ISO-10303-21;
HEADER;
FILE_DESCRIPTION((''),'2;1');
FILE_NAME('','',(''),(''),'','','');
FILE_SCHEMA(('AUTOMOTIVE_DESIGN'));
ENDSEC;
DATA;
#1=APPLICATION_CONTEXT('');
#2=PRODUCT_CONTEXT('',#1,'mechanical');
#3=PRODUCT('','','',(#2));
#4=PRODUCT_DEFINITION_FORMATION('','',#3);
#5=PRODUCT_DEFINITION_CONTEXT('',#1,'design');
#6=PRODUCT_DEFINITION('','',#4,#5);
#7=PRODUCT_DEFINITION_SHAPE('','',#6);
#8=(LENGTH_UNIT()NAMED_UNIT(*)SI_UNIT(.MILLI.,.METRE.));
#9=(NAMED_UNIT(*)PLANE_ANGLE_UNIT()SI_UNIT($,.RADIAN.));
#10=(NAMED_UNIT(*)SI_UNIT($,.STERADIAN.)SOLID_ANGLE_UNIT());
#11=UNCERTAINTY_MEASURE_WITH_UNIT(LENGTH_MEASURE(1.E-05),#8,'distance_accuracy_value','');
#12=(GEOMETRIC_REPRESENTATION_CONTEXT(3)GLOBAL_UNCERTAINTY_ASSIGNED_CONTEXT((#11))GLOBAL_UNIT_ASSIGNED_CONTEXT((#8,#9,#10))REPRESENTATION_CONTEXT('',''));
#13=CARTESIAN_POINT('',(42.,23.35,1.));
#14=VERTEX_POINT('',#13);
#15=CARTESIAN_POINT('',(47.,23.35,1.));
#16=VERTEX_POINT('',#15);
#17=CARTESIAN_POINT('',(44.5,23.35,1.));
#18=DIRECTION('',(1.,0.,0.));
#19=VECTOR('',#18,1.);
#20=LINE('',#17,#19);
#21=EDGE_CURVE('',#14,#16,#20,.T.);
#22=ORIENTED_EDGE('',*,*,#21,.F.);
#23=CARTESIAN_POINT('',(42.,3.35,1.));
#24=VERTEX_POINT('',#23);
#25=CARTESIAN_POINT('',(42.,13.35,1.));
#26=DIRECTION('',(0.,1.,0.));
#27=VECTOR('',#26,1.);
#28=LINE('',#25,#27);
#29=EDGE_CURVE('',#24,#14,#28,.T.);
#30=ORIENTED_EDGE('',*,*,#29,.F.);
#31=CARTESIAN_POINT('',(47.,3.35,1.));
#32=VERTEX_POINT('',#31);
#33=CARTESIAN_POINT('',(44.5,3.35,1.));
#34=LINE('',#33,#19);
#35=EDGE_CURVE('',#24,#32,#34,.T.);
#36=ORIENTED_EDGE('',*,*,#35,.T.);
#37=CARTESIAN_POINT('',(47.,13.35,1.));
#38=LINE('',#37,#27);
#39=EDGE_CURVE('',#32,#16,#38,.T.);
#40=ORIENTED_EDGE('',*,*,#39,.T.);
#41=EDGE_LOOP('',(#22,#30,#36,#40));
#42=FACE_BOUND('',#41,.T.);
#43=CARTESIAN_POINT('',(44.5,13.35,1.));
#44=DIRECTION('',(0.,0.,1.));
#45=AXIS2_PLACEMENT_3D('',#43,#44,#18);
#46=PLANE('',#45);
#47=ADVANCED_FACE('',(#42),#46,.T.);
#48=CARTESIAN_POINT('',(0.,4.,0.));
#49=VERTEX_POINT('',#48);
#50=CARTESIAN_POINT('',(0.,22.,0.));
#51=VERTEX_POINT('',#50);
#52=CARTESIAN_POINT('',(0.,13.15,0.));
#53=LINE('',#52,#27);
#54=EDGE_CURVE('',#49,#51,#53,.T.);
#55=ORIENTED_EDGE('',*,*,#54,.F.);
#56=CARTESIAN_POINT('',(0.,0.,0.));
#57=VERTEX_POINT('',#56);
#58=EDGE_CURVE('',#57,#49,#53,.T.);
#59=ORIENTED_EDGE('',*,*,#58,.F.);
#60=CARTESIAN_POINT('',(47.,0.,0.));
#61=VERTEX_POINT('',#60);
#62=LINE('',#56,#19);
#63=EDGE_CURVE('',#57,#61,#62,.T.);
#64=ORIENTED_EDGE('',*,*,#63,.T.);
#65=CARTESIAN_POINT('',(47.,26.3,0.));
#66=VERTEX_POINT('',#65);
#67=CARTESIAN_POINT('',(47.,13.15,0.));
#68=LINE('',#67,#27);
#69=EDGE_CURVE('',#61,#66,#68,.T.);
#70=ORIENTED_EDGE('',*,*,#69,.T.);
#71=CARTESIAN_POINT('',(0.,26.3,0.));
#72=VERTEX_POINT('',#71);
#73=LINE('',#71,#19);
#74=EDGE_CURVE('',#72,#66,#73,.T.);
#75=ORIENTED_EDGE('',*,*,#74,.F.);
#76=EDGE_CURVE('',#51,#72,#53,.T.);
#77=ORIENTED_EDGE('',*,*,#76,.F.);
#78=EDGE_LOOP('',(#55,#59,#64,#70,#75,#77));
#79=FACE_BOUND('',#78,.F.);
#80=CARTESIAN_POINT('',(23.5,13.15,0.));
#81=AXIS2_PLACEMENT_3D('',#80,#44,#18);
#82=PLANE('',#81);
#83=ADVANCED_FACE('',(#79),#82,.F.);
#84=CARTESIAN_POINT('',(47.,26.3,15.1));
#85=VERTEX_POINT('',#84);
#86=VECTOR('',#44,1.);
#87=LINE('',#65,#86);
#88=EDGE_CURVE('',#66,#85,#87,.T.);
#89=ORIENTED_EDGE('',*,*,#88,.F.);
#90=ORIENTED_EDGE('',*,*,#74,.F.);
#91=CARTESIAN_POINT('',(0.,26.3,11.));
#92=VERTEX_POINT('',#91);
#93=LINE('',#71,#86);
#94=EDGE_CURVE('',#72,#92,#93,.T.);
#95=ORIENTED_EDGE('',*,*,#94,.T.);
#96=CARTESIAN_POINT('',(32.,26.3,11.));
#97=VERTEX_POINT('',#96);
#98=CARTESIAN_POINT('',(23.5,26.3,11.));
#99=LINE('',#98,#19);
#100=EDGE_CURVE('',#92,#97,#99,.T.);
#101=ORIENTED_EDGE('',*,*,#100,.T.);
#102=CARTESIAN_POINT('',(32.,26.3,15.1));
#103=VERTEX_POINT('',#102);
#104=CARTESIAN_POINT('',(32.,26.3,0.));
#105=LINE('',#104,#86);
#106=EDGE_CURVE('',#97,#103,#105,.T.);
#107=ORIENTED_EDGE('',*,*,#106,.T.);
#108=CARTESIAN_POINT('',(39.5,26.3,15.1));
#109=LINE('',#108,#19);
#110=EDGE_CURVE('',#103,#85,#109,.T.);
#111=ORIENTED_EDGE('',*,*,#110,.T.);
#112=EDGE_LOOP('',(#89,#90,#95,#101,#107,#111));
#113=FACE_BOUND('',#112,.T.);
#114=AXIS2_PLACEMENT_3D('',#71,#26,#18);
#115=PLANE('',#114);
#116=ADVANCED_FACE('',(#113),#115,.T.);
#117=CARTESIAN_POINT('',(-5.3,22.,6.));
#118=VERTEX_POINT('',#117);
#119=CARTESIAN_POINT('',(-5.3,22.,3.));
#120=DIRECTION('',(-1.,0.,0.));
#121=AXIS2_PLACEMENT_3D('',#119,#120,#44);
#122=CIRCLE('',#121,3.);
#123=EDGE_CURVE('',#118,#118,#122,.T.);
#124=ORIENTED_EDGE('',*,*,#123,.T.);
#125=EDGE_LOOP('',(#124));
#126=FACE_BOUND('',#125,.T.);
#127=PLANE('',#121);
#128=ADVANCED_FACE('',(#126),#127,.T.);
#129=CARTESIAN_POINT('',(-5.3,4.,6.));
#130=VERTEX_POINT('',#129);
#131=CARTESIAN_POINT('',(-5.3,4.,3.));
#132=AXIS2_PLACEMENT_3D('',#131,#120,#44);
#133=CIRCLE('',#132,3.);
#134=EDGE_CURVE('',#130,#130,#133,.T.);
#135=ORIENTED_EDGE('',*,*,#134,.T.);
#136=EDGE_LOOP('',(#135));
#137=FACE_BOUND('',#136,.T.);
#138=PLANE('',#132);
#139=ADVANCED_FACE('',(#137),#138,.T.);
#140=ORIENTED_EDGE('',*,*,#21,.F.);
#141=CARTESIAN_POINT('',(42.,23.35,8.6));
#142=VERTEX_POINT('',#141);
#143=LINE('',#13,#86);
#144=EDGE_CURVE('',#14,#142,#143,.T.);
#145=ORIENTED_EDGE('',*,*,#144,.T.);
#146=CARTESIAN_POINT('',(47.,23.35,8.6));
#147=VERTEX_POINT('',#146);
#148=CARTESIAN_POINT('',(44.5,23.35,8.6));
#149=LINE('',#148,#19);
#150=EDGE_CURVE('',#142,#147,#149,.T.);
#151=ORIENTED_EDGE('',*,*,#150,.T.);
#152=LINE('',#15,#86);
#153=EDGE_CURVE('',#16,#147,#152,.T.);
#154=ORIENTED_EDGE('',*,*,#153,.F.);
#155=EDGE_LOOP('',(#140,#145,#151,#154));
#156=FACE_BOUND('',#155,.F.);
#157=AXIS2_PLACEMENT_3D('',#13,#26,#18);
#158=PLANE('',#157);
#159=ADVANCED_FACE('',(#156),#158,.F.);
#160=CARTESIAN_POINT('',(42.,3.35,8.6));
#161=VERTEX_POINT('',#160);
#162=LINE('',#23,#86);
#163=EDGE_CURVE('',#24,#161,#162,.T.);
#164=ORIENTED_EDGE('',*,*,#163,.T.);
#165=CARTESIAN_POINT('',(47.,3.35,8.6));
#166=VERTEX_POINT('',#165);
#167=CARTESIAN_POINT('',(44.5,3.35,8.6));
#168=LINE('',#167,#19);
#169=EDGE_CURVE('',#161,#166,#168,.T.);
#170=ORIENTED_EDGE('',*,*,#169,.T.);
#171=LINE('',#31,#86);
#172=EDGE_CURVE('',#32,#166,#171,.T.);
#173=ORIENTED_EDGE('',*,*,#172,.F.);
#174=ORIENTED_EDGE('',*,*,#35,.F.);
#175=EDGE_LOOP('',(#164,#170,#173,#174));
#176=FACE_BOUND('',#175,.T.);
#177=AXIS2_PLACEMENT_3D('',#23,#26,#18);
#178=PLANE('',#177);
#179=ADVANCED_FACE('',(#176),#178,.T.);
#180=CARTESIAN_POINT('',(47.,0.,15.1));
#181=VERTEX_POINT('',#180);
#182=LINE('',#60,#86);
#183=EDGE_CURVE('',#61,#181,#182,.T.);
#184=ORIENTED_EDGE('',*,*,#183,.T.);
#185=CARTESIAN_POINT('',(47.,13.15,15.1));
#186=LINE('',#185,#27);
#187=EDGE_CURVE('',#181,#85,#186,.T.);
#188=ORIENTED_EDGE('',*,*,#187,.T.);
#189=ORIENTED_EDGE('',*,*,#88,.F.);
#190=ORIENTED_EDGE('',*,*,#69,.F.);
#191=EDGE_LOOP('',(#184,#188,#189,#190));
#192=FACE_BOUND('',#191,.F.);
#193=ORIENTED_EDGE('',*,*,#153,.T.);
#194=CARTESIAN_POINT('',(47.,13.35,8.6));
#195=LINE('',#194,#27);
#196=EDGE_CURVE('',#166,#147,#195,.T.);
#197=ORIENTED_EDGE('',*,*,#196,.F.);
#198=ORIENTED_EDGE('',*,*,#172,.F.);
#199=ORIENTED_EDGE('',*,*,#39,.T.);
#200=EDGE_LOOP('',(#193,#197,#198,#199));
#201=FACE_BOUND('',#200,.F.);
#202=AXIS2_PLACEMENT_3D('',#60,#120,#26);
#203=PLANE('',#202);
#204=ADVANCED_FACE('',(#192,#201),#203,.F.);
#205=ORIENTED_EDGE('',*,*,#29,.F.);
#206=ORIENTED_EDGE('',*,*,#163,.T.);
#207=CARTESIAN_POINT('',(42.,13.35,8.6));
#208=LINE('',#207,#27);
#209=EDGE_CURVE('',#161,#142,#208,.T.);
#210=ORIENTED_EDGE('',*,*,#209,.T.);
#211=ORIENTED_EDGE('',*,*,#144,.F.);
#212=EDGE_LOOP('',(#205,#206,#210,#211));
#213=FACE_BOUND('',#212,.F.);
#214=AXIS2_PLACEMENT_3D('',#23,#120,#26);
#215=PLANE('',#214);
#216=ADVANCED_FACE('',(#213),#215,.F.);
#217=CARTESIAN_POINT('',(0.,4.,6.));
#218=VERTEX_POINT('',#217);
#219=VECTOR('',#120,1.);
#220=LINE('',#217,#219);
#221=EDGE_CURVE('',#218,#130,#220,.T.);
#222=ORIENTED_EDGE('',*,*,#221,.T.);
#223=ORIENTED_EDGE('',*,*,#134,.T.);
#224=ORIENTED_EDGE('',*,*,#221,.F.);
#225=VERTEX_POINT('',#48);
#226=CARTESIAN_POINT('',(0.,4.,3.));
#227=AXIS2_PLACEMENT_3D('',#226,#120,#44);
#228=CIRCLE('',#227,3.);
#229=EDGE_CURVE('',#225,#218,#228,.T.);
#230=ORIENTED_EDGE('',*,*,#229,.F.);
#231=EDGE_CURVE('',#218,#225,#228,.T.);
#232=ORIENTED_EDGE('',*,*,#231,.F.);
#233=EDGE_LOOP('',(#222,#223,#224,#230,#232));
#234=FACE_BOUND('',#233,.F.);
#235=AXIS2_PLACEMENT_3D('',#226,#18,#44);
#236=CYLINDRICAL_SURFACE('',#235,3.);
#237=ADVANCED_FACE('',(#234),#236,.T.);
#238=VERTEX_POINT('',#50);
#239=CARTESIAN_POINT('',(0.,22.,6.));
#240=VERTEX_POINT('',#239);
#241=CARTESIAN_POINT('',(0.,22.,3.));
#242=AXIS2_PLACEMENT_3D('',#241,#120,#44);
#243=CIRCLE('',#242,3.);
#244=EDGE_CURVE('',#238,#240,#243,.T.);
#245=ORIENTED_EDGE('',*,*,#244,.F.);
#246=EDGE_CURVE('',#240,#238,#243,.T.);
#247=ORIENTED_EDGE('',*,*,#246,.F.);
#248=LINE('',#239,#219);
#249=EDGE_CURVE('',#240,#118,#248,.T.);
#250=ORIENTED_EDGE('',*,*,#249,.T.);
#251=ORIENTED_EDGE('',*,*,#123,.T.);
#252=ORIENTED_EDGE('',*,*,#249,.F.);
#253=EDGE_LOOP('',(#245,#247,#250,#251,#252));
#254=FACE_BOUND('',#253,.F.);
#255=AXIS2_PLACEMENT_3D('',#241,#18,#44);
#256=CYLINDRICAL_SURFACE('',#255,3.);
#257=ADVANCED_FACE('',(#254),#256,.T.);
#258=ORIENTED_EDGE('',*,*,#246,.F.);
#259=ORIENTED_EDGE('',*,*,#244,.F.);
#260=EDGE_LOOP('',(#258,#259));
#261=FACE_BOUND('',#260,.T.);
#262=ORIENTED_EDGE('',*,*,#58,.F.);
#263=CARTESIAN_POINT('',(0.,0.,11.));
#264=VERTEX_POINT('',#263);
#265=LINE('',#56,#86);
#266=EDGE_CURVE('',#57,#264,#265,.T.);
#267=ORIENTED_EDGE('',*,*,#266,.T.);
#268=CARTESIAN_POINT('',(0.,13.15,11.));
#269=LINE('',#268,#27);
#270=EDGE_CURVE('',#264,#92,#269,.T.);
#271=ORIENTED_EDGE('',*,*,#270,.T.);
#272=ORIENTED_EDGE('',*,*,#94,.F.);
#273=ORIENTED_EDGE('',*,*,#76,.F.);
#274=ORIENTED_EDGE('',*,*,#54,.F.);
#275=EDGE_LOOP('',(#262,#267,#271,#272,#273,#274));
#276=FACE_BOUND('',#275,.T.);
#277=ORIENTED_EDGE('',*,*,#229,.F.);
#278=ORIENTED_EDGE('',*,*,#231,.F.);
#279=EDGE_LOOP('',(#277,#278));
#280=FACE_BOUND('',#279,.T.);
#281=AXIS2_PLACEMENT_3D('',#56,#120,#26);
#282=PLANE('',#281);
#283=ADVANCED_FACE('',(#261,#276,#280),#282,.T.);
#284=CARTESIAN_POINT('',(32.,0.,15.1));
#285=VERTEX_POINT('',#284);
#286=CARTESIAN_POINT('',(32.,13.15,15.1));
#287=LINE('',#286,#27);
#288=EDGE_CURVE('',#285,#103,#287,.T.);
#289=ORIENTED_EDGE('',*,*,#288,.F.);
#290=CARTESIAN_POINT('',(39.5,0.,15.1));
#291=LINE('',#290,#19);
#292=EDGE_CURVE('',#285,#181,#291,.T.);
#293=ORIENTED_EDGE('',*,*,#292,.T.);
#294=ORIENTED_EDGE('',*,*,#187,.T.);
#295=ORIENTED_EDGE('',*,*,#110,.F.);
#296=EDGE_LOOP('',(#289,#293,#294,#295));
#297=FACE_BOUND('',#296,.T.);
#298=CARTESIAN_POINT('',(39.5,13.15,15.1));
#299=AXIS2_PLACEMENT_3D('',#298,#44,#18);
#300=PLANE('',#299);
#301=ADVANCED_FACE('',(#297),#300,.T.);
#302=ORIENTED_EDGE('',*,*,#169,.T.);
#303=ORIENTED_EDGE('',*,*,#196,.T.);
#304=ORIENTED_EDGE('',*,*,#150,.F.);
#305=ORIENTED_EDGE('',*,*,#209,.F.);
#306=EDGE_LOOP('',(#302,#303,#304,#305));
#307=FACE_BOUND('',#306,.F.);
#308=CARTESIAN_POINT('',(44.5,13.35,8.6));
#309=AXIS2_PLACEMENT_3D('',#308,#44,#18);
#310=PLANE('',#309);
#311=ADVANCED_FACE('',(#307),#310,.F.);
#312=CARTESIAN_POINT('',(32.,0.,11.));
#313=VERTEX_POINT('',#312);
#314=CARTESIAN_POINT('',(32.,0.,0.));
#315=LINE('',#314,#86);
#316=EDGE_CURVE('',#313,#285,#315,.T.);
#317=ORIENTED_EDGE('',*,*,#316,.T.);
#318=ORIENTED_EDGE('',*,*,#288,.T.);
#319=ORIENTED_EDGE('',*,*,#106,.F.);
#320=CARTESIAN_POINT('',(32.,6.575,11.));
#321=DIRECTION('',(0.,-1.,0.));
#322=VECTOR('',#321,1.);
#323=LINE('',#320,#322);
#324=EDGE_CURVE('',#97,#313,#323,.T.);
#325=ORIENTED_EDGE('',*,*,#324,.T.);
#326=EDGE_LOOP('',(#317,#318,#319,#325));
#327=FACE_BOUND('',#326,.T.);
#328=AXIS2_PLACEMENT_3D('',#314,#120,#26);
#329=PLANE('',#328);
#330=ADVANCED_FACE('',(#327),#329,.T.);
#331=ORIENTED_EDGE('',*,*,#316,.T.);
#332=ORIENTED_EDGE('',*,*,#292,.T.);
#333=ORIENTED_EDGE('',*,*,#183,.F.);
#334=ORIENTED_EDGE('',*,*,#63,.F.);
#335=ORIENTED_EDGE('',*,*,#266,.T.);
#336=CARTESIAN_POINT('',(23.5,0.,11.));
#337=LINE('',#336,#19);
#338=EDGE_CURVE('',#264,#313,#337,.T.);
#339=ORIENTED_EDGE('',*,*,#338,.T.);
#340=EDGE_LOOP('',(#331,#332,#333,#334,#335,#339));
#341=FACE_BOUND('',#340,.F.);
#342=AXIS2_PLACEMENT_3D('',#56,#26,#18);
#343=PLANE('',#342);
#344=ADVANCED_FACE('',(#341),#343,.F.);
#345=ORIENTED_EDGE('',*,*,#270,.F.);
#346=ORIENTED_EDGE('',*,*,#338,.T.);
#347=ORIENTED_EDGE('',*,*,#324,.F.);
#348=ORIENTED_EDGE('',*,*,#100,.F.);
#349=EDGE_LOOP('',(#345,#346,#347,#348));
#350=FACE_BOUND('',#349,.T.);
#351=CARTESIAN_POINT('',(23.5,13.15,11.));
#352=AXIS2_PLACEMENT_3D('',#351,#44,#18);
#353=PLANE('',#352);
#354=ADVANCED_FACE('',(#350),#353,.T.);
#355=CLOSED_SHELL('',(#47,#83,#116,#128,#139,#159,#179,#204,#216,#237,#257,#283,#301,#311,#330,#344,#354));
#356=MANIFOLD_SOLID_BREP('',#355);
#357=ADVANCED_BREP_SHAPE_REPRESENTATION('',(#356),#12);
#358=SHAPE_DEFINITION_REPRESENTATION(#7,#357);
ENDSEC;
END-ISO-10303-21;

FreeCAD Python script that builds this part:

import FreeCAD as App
import Part
import Sketcher

V = App.Vector
Q = App.Units.Quantity

doc = App.newDocument("Part")
body = doc.addObject("PartDesign::Body", "Body")

# Sketch on XY plane
sketch1 = body.newObject("Sketcher::SketchObject", "Sketch")
sketch1.AttachmentSupport = (doc.getObject("XY_Plane"), [""])
sketch1.MapMode = "FlatFace"
sketch1.AttachmentOffset = App.Placement(V(0, 0, 1), App.Rotation())
sketch1.addGeometry(Part.LineSegment(V(42, 23.35, 0), V(42, 3.35, 0)), False)
sketch1.addGeometry(Part.LineSegment(V(42, 3.35, 0), V(47, 3.35, 0)), False)
sketch1.addGeometry(Part.LineSegment(V(47, 3.35, 0), V(47, 23.35, 0)), False)
sketch1.addGeometry(Part.LineSegment(V(47, 23.35, 0), V(42, 23.35, 0)), False)
sketch1.addConstraint(Sketcher.Constraint("Coincident", 0, 2, 1, 1))
sketch1.addConstraint(Sketcher.Constraint("Coincident", 1, 2, 2, 1))
sketch1.addConstraint(Sketcher.Constraint("Coincident", 2, 2, 3, 1))
sketch1.addConstraint(Sketcher.Constraint("Coincident", 3, 2, 0, 1))
sketch1.addConstraint(Sketcher.Constraint("Vertical", 0))
sketch1.addConstraint(Sketcher.Constraint("Horizontal", 1))
sketch1.addConstraint(Sketcher.Constraint("Vertical", 2))
sketch1.addConstraint(Sketcher.Constraint("Horizontal", 3))
sketch1.addConstraint(Sketcher.Constraint("DistanceX", 1, 1, 1, 2, Q("5 mm")))
sketch1.addConstraint(Sketcher.Constraint("DistanceY", 0, 2, 0, 1, Q("20 mm")))
sketch1.addConstraint(Sketcher.Constraint("DistanceX", -1, 1, 0, 2, Q("42 mm")))
sketch1.addConstraint(Sketcher.Constraint("DistanceY", -1, 1, 0, 2, Q("3.35 mm")))
pad1 = body.newObject("PartDesign::Pad", "Pad")
pad1.Profile = sketch1
pad1.Length = 7.6
body2 = doc.addObject("PartDesign::Body", "Body001")

# Sketch on XY plane
sketch2 = body2.newObject("Sketcher::SketchObject", "Sketch001")
sketch2.AttachmentSupport = (doc.getObject("XY_Plane001"), [""])
sketch2.MapMode = "FlatFace"
sketch2.addGeometry(Part.LineSegment(V(32, 26.3, 0), V(32, 0, 0)), False)
sketch2.addGeometry(Part.LineSegment(V(32, 0, 0), V(47, 0, 0)), False)
sketch2.addGeometry(Part.LineSegment(V(47, 0, 0), V(47, 26.3, 0)), False)
sketch2.addGeometry(Part.LineSegment(V(47, 26.3, 0), V(32, 26.3, 0)), False)
sketch2.addConstraint(Sketcher.Constraint("Coincident", 0, 2, 1, 1))
sketch2.addConstraint(Sketcher.Constraint("Coincident", 1, 2, 2, 1))
sketch2.addConstraint(Sketcher.Constraint("Coincident", 2, 2, 3, 1))
sketch2.addConstraint(Sketcher.Constraint("Coincident", 3, 2, 0, 1))
sketch2.addConstraint(Sketcher.Constraint("Vertical", 0))
sketch2.addConstraint(Sketcher.Constraint("Horizontal", 1))
sketch2.addConstraint(Sketcher.Constraint("Vertical", 2))
sketch2.addConstraint(Sketcher.Constraint("Horizontal", 3))
sketch2.addConstraint(Sketcher.Constraint("PointOnObject", 0, 2, -1))
sketch2.addConstraint(Sketcher.Constraint("DistanceX", 1, 1, 1, 2, Q("15 mm")))
sketch2.addConstraint(Sketcher.Constraint("DistanceY", 0, 2, 0, 1, Q("26.3 mm")))
sketch2.addConstraint(Sketcher.Constraint("DistanceX", -1, 1, 0, 2, Q("32 mm")))
pad2 = body2.newObject("PartDesign::Pad", "Pad001")
pad2.Profile = sketch2
pad2.Length = 15.1
body3 = doc.addObject("PartDesign::Body", "Body002")

# Sketch on YZ plane
sketch3 = body3.newObject("Sketcher::SketchObject", "Sketch002")
sketch3.AttachmentSupport = (doc.getObject("YZ_Plane002"), [""])
sketch3.MapMode = "FlatFace"
sketch3.addGeometry(Part.Circle(V(4, 3, 0), V(0, 0, 1), 3), False)
sketch3.addConstraint(Sketcher.Constraint("Diameter", 0, Q("6 mm")))
sketch3.addConstraint(Sketcher.Constraint("DistanceX", -1, 1, 0, 3, Q("4 mm")))
sketch3.addConstraint(Sketcher.Constraint("DistanceY", -1, 1, 0, 3, Q("3 mm")))
pad3 = body3.newObject("PartDesign::Pad", "Pad002")
pad3.Profile = sketch3
pad3.Length = 5.3
pad3.Reversed = True
body4 = doc.addObject("PartDesign::Body", "Body003")

# Sketch on YZ plane
sketch4 = body4.newObject("Sketcher::SketchObject", "Sketch003")
sketch4.AttachmentSupport = (doc.getObject("YZ_Plane003"), [""])
sketch4.MapMode = "FlatFace"
sketch4.addGeometry(Part.Circle(V(22, 3, 0), V(0, 0, 1), 3), False)
sketch4.addConstraint(Sketcher.Constraint("Diameter", 0, Q("6 mm")))
sketch4.addConstraint(Sketcher.Constraint("DistanceX", -1, 1, 0, 3, Q("22 mm")))
sketch4.addConstraint(Sketcher.Constraint("DistanceY", -1, 1, 0, 3, Q("3 mm")))
pad4 = body4.newObject("PartDesign::Pad", "Pad003")
pad4.Profile = sketch4
pad4.Length = 5.3
pad4.Reversed = True
body5 = doc.addObject("PartDesign::Body", "Body004")

# Sketch on XY plane
sketch5 = body5.newObject("Sketcher::SketchObject", "Sketch004")
sketch5.AttachmentSupport = (doc.getObject("XY_Plane004"), [""])
sketch5.MapMode = "FlatFace"
sketch5.addGeometry(Part.LineSegment(V(0, 26.3, 0), V(0, 0, 0)), False)
sketch5.addGeometry(Part.LineSegment(V(0, 0, 0), V(47, 0, 0)), False)
sketch5.addGeometry(Part.LineSegment(V(47, 0, 0), V(47, 26.3, 0)), False)
sketch5.addGeometry(Part.LineSegment(V(47, 26.3, 0), V(0, 26.3, 0)), False)
sketch5.addConstraint(Sketcher.Constraint("Coincident", 0, 2, 1, 1))
sketch5.addConstraint(Sketcher.Constraint("Coincident", 1, 2, 2, 1))
sketch5.addConstraint(Sketcher.Constraint("Coincident", 2, 2, 3, 1))
sketch5.addConstraint(Sketcher.Constraint("Coincident", 3, 2, 0, 1))
sketch5.addConstraint(Sketcher.Constraint("Vertical", 0))
sketch5.addConstraint(Sketcher.Constraint("Horizontal", 1))
sketch5.addConstraint(Sketcher.Constraint("Vertical", 2))
sketch5.addConstraint(Sketcher.Constraint("Horizontal", 3))
sketch5.addConstraint(Sketcher.Constraint("Coincident", 0, 2, -1, 1))
sketch5.addConstraint(Sketcher.Constraint("DistanceX", 1, 1, 1, 2, Q("47 mm")))
sketch5.addConstraint(Sketcher.Constraint("DistanceY", 0, 2, 0, 1, Q("26.3 mm")))
pad5 = body5.newObject("PartDesign::Pad", "Pad004")
pad5.Profile = sketch5
pad5.Length = 11
doc.recompute()

boolean = body5.newObject("PartDesign::Boolean", "Boolean")
boolean.Type = "Fuse"
boolean.addObjects([body2])
doc.recompute()

boolean2 = body5.newObject("PartDesign::Boolean", "Boolean001")
boolean2.Type = "Fuse"
boolean2.addObjects([body3])
doc.recompute()

boolean3 = body5.newObject("PartDesign::Boolean", "Boolean002")
boolean3.Type = "Fuse"
boolean3.addObjects([body4])
doc.recompute()

boolean4 = body5.newObject("PartDesign::Boolean", "Boolean003")
boolean4.Type = "Cut"
boolean4.addObjects([body])

doc.recompute()
